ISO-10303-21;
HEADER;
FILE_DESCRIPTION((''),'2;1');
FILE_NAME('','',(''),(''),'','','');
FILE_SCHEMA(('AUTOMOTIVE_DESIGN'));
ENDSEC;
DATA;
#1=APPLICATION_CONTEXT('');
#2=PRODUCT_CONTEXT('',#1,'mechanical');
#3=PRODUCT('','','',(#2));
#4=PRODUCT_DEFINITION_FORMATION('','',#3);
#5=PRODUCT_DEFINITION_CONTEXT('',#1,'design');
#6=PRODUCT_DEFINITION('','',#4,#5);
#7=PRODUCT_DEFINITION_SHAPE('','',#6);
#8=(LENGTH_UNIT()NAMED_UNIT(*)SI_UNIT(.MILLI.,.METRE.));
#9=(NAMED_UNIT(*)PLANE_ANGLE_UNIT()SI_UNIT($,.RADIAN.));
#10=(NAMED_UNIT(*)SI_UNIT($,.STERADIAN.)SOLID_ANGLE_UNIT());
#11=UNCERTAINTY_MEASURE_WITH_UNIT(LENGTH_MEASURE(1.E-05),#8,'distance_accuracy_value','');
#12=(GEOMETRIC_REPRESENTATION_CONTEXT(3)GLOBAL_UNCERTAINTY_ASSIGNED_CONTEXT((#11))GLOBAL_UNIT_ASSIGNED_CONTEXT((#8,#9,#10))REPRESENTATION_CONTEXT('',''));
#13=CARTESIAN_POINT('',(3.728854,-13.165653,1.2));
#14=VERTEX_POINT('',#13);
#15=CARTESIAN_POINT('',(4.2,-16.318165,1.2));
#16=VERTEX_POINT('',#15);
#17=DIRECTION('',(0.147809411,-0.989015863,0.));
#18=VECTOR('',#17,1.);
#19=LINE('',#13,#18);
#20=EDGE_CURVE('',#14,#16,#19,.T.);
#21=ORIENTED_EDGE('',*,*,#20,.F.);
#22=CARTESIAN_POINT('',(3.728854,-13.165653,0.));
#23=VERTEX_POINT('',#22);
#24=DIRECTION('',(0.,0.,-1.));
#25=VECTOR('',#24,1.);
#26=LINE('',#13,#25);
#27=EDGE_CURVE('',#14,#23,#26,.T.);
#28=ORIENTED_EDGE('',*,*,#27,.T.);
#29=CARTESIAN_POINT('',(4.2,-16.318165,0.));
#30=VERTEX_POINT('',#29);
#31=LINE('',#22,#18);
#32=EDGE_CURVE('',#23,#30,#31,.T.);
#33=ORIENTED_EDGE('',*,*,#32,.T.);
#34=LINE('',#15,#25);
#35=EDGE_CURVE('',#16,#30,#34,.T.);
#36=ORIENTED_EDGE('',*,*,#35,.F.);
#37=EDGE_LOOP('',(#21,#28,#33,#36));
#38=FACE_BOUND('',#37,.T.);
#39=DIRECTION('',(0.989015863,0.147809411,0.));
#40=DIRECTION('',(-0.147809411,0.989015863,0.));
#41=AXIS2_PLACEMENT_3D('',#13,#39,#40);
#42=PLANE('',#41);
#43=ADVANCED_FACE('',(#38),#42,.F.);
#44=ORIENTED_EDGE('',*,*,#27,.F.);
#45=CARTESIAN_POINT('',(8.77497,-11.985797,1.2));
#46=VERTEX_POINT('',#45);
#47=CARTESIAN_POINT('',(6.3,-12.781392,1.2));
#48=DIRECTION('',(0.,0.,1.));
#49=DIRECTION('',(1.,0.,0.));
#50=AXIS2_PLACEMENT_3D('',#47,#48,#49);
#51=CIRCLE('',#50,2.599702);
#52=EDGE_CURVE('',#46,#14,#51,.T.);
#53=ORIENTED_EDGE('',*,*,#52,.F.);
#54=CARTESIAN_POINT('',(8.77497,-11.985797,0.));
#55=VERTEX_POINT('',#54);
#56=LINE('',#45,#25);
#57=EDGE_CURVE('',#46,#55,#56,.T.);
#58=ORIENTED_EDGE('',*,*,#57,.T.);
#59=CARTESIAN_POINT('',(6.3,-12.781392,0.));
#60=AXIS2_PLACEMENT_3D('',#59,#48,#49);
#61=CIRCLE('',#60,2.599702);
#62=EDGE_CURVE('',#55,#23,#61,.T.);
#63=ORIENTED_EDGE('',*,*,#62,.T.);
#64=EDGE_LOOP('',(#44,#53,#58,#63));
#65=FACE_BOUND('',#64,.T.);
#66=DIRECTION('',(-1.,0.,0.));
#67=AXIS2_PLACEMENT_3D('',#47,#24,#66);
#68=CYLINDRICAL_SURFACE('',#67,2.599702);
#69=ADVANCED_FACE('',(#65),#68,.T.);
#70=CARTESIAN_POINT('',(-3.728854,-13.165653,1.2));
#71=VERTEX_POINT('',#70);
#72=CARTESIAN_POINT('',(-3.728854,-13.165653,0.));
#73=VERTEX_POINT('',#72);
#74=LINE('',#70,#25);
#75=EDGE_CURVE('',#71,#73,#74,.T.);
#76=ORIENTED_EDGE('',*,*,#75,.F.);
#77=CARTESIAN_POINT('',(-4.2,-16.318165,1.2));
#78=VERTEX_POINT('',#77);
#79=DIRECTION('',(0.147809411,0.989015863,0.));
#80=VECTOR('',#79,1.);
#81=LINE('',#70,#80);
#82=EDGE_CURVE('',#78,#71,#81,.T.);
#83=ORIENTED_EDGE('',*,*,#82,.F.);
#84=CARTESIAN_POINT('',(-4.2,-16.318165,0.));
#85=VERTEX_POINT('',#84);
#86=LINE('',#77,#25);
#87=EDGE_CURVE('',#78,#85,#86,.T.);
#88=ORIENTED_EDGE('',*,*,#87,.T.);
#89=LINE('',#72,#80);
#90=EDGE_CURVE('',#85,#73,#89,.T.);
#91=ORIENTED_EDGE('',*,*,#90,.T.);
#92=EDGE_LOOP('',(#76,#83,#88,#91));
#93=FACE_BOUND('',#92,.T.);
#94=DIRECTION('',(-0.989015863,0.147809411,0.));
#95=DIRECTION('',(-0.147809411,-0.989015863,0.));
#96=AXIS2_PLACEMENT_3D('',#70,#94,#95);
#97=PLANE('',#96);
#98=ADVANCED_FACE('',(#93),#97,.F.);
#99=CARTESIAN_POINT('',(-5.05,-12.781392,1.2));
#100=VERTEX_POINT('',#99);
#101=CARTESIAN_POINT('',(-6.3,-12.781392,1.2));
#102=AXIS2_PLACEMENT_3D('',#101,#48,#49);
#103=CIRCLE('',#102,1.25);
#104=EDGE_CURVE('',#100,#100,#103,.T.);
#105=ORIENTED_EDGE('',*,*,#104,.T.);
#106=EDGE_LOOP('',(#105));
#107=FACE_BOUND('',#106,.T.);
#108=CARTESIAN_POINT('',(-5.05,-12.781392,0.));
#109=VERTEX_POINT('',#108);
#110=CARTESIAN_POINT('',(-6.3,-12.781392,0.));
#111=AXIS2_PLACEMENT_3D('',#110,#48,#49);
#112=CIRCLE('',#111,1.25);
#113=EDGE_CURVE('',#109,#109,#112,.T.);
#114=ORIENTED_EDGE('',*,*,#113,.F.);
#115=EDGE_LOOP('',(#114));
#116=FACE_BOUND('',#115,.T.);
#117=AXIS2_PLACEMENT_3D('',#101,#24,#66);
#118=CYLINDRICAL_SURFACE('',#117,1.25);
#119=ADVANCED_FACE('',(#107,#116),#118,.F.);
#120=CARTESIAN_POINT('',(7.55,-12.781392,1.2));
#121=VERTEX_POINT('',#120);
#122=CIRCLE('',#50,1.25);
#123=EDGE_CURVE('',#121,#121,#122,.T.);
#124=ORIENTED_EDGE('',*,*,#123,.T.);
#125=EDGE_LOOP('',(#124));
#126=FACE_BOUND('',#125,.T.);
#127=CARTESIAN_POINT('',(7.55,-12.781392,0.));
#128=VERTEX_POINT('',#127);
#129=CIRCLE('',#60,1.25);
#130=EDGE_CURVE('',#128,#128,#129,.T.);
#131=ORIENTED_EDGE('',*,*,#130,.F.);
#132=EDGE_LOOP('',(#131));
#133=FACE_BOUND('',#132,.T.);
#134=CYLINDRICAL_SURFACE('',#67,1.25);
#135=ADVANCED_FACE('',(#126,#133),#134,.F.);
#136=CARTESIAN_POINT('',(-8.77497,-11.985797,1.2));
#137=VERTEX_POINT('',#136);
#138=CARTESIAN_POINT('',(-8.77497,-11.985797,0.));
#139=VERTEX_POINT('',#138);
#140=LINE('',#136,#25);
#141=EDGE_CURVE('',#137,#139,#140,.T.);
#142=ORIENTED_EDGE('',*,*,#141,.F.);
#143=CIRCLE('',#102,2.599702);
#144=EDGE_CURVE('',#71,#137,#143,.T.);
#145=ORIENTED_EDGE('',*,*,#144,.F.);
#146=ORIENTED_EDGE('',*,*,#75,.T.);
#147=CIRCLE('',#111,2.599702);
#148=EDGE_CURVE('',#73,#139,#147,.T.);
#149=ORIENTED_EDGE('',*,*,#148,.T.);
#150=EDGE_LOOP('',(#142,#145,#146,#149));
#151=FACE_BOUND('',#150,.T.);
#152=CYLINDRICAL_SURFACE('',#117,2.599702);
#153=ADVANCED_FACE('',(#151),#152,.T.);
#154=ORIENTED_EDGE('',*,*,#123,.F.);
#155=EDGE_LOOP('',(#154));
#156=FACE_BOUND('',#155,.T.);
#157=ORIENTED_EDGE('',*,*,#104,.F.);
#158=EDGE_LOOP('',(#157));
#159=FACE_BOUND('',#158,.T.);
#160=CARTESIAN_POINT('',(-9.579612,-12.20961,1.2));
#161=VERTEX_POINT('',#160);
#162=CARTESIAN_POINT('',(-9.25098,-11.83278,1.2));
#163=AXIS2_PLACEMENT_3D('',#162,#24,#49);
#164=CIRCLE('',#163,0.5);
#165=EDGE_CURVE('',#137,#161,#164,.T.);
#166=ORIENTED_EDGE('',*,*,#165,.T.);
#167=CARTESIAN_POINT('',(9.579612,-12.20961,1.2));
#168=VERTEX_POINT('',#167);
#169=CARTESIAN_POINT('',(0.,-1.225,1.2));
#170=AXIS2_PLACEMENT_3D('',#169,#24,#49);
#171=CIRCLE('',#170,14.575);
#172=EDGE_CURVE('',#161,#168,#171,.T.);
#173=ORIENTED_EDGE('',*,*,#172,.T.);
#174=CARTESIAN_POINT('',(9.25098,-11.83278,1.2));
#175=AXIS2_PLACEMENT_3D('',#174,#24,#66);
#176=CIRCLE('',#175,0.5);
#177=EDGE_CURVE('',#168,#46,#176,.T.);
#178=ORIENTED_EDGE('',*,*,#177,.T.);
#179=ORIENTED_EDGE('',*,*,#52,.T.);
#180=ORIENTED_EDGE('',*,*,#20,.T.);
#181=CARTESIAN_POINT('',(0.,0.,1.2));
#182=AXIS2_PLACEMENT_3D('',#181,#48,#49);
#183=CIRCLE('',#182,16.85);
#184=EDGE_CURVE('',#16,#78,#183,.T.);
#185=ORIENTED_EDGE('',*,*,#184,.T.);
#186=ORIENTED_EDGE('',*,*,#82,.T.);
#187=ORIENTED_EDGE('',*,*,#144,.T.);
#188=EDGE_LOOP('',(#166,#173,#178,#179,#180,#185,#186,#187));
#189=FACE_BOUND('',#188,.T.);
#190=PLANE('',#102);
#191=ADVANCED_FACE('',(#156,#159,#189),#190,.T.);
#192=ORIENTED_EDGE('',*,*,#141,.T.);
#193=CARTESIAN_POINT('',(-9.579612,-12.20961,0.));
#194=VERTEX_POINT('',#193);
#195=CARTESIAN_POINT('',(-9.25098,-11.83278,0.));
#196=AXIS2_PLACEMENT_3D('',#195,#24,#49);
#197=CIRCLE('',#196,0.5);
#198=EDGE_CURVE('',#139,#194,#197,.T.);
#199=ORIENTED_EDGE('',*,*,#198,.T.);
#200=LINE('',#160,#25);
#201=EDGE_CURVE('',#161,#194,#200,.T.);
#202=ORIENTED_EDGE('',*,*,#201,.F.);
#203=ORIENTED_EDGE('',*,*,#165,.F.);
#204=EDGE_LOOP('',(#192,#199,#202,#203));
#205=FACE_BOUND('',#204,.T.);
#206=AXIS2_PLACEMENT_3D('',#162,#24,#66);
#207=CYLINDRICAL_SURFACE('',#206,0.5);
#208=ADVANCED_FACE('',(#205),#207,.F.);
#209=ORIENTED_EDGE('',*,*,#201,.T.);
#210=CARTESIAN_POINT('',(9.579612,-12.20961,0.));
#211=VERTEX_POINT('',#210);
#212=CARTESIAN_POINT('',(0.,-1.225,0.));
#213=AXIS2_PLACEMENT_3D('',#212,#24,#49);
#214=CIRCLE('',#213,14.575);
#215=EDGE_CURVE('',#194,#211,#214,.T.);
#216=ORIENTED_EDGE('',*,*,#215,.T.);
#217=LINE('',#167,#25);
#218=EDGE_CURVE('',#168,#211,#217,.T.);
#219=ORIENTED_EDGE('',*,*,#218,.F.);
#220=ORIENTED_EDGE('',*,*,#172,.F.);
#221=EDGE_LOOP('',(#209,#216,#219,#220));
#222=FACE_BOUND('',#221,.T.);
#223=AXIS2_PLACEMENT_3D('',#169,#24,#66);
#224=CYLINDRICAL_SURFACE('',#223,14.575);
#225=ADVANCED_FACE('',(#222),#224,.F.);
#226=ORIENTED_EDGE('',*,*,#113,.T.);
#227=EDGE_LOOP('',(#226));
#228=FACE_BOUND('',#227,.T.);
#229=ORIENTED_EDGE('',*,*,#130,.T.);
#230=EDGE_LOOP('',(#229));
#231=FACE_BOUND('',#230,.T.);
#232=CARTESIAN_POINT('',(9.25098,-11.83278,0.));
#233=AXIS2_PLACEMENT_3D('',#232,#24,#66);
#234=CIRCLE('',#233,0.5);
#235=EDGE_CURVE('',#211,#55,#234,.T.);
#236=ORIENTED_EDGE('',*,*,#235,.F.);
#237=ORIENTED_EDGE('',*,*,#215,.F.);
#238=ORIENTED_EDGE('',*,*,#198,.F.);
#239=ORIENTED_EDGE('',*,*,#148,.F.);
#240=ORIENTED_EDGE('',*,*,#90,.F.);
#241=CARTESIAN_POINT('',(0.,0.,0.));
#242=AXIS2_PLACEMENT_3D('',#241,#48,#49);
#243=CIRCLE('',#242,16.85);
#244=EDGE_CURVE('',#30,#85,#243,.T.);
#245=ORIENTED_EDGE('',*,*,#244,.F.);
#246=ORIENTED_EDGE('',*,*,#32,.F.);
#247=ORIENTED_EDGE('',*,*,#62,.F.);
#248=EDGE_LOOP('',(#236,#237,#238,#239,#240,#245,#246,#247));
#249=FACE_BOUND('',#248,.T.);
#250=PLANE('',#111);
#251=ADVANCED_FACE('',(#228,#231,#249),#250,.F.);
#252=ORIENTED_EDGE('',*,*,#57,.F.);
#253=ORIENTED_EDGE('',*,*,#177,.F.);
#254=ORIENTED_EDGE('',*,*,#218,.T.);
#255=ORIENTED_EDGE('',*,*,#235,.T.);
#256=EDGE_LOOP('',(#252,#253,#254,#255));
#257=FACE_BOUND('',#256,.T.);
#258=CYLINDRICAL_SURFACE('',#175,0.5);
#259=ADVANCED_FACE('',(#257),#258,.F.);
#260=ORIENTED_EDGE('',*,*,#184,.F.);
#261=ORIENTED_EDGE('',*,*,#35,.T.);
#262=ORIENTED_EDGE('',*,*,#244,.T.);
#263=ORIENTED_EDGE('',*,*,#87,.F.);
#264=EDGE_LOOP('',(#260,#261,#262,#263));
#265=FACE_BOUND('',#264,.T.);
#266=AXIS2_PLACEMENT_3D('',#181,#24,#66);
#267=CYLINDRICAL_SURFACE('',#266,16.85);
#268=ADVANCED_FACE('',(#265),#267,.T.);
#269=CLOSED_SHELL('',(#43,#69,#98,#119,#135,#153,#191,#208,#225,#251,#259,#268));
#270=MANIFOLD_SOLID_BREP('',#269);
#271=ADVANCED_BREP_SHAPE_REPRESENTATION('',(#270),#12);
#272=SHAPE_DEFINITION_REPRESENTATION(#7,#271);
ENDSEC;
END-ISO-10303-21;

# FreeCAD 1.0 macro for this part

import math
import FreeCAD as App
import Part
import Sketcher
Q = App.Units.Quantity

doc = App.newDocument("Part")
body = doc.addObject("PartDesign::Body", "Body")

sketch1 = body.newObject("Sketcher::SketchObject", "Sketch")
sketch1.AttachmentSupport = (doc.getObject("XY_Plane"), [""])
sketch1.MapMode = "FlatFace"
sketch1.addGeometry([
    Part.LineSegment(App.Vector(-4.2, -16.32, 0), App.Vector(-3.73, -13.17, 0)),
    Part.ArcOfCircle(Part.Circle(App.Vector(-6.3, -12.78, 0), App.Vector(0, 0, 1), 2.6), math.radians(-9), math.radians(162)),
    Part.ArcOfCircle(Part.Circle(App.Vector(-9.25, -11.83, 0), App.Vector(0, 0, 1), 0.5), math.radians(-131), math.radians(-18)),
    Part.ArcOfCircle(Part.Circle(App.Vector(0, -1.23, 0), App.Vector(0, 0, 1), 14.57), math.radians(-49), math.radians(229)),
    Part.ArcOfCircle(Part.Circle(App.Vector(9.25, -11.83, 0), App.Vector(0, 0, 1), 0.5), math.radians(-162), math.radians(-49)),
    Part.ArcOfCircle(Part.Circle(App.Vector(6.3, -12.78, 0), App.Vector(0, 0, 1), 2.6), math.radians(18), math.radians(189)),
    Part.LineSegment(App.Vector(3.73, -13.17, 0), App.Vector(4.2, -16.32, 0)),
    Part.ArcOfCircle(Part.Circle(App.Vector(0, 0, 0), App.Vector(0, 0, 1), 16.85), math.radians(-76), math.radians(256)),
    Part.Circle(App.Vector(6.3, -12.78, 0), App.Vector(0, 0, 1), 1.25),
    Part.Circle(App.Vector(-6.3, -12.78, 0), App.Vector(0, 0, 1), 1.25),
], False)
sketch1.addConstraint([
    Sketcher.Constraint("Tangent", 0, 2, 1, 1),
    Sketcher.Constraint("Tangent", 1, 2, 2, 2),
    Sketcher.Constraint("Tangent", 2, 1, 3, 2),
    Sketcher.Constraint("Tangent", 3, 1, 4, 2),
    Sketcher.Constraint("Tangent", 4, 1, 5, 1),
    Sketcher.Constraint("Tangent", 5, 2, 6, 1),
    Sketcher.Constraint("Coincident", 6, 2, 7, 1),
    Sketcher.Constraint("Coincident", 7, 2, 0, 1),
    Sketcher.Constraint("Coincident", 7, 3, -1, 1),
    Sketcher.Constraint("Coincident", 8, 3, 5, 3),
    Sketcher.Constraint("Coincident", 9, 3, 1, 3),
    Sketcher.Constraint("Equal", 2, 4),
    Sketcher.Constraint("Equal", 1, 5),
    Sketcher.Constraint("Equal", 8, 9),
    Sketcher.Constraint("Symmetric", 2, 3, 4, 3, -2),
    Sketcher.Constraint("Symmetric", 0, 2, 5, 2, -2),
    Sketcher.Constraint("Diameter", 8, Q("2.5 mm")),
    Sketcher.Constraint("Radius", 2, Q("0.5 mm")),
    Sketcher.Constraint("Radius", 7, Q("16.85 mm")),
    Sketcher.Constraint("Angle", 0, Q("81.5 deg")),
    Sketcher.Constraint("Radius", 3, Q("14.575 mm")),
    Sketcher.Constraint("DistanceX", 1, 3, -1, 1, Q("6.3 mm")),
    Sketcher.Constraint("DistanceX", -1, 1, 6, 2, Q("4.2 mm")),
    Sketcher.Constraint("Radius", 1, Q("2.599702 mm")),
    Sketcher.Constraint("DistanceY", 3, 3, -1, 1, Q("1.225 mm")),
])
pad1 = body.newObject("PartDesign::Pad", "Pad")
pad1.Profile = sketch1
pad1.Length = 1.2

doc.recompute()
